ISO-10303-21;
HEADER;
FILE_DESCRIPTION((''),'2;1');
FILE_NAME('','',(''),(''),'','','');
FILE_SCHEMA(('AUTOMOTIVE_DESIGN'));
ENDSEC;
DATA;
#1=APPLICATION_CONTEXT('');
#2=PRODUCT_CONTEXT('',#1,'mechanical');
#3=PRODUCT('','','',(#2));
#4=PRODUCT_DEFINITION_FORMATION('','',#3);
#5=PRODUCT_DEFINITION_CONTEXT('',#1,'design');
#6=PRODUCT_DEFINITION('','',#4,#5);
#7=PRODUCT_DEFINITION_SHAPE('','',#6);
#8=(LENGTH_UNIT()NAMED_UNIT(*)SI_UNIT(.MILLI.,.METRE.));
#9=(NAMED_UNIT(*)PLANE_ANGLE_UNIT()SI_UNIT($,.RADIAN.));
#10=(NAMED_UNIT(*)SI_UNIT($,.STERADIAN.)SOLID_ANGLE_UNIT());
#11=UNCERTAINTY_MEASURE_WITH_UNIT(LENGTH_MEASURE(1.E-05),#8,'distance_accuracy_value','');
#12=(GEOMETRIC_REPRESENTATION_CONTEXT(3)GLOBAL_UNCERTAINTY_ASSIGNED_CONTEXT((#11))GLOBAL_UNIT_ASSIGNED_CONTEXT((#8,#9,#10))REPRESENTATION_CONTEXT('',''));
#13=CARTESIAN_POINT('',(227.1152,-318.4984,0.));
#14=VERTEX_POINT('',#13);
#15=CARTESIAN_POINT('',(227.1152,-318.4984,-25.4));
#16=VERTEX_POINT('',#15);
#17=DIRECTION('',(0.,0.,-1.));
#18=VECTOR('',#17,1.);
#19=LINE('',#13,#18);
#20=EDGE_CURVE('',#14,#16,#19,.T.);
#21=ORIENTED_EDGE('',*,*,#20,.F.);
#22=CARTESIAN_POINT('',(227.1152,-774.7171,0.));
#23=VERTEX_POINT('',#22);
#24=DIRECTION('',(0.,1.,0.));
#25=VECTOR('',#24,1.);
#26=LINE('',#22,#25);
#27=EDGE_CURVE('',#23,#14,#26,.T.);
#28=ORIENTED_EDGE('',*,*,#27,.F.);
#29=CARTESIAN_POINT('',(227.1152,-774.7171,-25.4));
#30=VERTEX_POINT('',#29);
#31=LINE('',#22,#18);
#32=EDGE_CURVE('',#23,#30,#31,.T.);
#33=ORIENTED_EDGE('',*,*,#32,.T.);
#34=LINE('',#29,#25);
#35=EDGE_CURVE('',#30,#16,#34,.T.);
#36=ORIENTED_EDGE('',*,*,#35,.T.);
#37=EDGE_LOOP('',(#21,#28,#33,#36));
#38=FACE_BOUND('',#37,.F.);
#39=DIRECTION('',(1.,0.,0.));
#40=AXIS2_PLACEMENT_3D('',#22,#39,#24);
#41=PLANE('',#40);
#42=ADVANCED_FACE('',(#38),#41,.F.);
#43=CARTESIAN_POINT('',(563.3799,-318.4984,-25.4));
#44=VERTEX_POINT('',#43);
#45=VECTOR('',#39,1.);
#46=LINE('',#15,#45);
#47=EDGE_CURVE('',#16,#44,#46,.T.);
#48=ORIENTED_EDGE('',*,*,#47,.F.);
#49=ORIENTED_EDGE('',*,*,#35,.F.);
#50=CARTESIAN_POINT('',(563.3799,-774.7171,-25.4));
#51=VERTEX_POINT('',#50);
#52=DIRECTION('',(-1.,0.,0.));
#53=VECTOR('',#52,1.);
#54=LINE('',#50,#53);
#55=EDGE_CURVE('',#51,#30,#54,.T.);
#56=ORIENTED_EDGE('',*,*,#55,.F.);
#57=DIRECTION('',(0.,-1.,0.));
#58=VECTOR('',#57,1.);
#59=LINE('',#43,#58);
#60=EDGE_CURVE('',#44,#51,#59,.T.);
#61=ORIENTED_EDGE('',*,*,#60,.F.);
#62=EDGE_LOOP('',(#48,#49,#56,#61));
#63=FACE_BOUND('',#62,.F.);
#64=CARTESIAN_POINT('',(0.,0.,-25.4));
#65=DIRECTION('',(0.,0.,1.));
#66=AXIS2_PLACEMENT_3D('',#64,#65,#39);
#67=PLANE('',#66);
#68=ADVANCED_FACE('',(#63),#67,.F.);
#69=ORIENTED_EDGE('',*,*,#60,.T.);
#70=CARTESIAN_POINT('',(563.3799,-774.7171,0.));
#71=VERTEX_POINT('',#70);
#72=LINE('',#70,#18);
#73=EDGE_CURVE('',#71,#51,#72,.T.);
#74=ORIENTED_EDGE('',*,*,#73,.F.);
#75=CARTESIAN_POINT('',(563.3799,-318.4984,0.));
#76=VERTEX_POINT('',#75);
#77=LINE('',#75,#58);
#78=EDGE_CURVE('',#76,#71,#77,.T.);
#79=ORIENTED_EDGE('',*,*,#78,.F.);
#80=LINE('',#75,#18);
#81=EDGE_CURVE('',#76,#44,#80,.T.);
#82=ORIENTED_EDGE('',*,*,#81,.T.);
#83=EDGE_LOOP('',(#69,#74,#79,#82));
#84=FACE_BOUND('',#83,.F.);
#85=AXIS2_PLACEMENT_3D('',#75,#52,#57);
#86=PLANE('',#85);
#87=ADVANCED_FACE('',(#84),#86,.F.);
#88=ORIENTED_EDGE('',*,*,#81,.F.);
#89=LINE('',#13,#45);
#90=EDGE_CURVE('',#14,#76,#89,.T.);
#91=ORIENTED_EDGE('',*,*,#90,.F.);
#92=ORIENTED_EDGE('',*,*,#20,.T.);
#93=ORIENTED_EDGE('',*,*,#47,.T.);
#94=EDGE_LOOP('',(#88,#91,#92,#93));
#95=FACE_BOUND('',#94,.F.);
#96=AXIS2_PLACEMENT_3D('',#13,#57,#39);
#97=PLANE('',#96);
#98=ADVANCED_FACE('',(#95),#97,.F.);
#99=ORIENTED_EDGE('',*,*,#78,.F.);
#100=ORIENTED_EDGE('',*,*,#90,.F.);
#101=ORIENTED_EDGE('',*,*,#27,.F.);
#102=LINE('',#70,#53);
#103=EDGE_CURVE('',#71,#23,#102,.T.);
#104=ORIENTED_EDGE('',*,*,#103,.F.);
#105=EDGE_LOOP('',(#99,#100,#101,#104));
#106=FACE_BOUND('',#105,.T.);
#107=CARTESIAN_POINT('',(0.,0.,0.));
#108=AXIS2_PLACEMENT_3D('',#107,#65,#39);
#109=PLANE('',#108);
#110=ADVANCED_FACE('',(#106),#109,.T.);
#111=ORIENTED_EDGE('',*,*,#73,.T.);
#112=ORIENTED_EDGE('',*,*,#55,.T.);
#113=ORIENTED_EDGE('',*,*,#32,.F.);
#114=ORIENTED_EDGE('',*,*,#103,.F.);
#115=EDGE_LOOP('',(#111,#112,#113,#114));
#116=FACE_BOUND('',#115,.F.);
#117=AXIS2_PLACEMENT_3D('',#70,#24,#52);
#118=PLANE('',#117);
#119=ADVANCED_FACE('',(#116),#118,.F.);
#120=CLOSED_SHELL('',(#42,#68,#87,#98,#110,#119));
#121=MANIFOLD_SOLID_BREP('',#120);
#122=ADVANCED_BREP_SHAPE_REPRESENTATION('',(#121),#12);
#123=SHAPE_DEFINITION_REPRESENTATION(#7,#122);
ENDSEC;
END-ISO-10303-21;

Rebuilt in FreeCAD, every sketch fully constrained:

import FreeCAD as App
import Part
import Sketcher
from FreeCAD import Vector
Q = App.Units.Quantity

doc = App.newDocument("Part")
params = doc.addObject("Spreadsheet::Sheet", "Params")
for row, (alias, value) in enumerate([
    ("pad1_length", "1 in"),
], start=1):
    params.set(f"A{row}", alias)
    params.set(f"B{row}", "=" + value)
    params.setAlias(f"B{row}", alias)

body = doc.addObject("PartDesign::Body", "Body")

# Sketch on XY plane
sketch1 = body.newObject("Sketcher::SketchObject", "Sketch")
sketch1.AttachmentSupport = (doc.getObject("XY_Plane"), [""])
sketch1.MapMode = "FlatFace"
sketch1.addGeometry([
    Part.LineSegment(Vector(563.3799, -318.4984, 0), Vector(227.1152, -318.4984, 0)),
    Part.LineSegment(Vector(227.1152, -318.4984, 0), Vector(227.1152, -774.7171, 0)),
    Part.LineSegment(Vector(227.1152, -774.7171, 0), Vector(563.3799, -774.7171, 0)),
    Part.LineSegment(Vector(563.3799, -774.7171, 0), Vector(563.3799, -318.4984, 0)),
], False)
sketch1.addConstraint([
    Sketcher.Constraint("Coincident", 0, 2, 1, 1),
    Sketcher.Constraint("Coincident", 1, 2, 2, 1),
    Sketcher.Constraint("Coincident", 2, 2, 3, 1),
    Sketcher.Constraint("Coincident", 3, 2, 0, 1),
    Sketcher.Constraint("Horizontal", 0),
    Sketcher.Constraint("Vertical", 1),
    Sketcher.Constraint("Horizontal", 2),
    Sketcher.Constraint("Vertical", 3),
    Sketcher.Constraint("DistanceX", 0, 2, 0, 1, Q("336.2647 mm")),
    Sketcher.Constraint("DistanceY", 1, 2, 1, 1, Q("456.2187 mm")),
    Sketcher.Constraint("DistanceY", 0, 2, -1, 1, Q("12.5393 in")),
    Sketcher.Constraint("DistanceX", -1, 1, 2, 2, Q("22.1803 in")),
])
pad1 = body.newObject("PartDesign::Pad", "Pad")
pad1.Profile = sketch1
pad1.setExpression("Length", "Params.pad1_length")
pad1.Reversed = True

doc.recompute()
